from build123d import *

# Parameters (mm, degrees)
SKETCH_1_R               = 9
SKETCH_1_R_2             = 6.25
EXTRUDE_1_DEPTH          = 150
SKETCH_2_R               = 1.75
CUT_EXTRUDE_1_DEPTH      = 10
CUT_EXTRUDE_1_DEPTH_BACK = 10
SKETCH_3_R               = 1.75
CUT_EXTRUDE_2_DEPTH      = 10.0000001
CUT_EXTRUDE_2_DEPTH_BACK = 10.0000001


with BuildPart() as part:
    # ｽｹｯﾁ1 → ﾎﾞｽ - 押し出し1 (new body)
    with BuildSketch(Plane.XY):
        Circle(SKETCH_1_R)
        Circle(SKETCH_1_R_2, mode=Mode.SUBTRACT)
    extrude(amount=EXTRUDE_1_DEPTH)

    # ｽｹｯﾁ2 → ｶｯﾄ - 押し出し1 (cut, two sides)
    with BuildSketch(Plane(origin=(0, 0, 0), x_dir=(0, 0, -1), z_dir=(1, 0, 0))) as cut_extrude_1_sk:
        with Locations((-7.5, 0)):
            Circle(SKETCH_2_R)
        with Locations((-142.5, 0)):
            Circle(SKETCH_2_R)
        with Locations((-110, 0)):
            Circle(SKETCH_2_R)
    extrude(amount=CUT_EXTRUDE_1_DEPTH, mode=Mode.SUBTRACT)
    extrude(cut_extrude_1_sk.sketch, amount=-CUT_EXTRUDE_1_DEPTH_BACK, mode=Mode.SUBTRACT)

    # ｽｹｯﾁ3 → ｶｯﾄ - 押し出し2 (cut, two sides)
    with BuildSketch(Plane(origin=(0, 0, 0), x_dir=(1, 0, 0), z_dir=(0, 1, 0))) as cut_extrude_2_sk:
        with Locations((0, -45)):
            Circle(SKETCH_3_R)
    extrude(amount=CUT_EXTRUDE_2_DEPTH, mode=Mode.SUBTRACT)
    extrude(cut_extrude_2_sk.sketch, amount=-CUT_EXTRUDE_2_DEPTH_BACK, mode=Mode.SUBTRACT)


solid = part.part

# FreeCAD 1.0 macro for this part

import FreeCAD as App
import Part
import Sketcher
from FreeCAD import Vector

doc = App.newDocument("Part")
body = doc.addObject("PartDesign::Body", "Body")

# Sketch on XY plane
sketch1 = body.newObject("Sketcher::SketchObject", "Sketch")
sketch1.AttachmentSupport = (doc.getObject("XY_Plane"), [""])
sketch1.MapMode = "FlatFace"
sketch1.addGeometry(Part.Circle(Vector(0, 0, 0), Vector(0, 0, 1), 9), False)
sketch1.addGeometry(Part.Circle(Vector(0, 0, 0), Vector(0, 0, 1), 6), False)
sketch1.addConstraint(Sketcher.Constraint("Coincident", 0, 3, -1, 1))
sketch1.addConstraint(Sketcher.Constraint("Coincident", 1, 3, -1, 1))
sketch1.addConstraint(Sketcher.Constraint("Diameter", 0, 18.0))
sketch1.addConstraint(Sketcher.Constraint("Diameter", 1, 12.5))
pad1 = body.newObject("PartDesign::Pad", "Pad")
pad1.Profile = sketch1
pad1.Length = 150

# Sketch on YZ plane
sketch2 = body.newObject("Sketcher::SketchObject", "Sketch001")
sketch2.AttachmentSupport = (doc.getObject("YZ_Plane"), [""])
sketch2.MapMode = "FlatFace"
sketch2.addGeometry(Part.Circle(Vector(0, 7.5, 0), Vector(0, 0, 1), 1.8), False)
sketch2.addGeometry(Part.Circle(Vector(0, 142.5, 0), Vector(0, 0, 1), 1.8), False)
sketch2.addGeometry(Part.Circle(Vector(0, 110, 0), Vector(0, 0, 1), 1.8), False)
sketch2.addConstraint(Sketcher.Constraint("Equal", 0, 1))
sketch2.addConstraint(Sketcher.Constraint("Equal", 1, 2))
sketch2.addConstraint(Sketcher.Constraint("PointOnObject", 0, 3, -2))
sketch2.addConstraint(Sketcher.Constraint("PointOnObject", 1, 3, -2))
sketch2.addConstraint(Sketcher.Constraint("PointOnObject", 2, 3, -2))
sketch2.addConstraint(Sketcher.Constraint("Diameter", 0, 3.5))
sketch2.addConstraint(Sketcher.Constraint("DistanceY", -1, 1, 2, 3, 110.0))
sketch2.addConstraint(Sketcher.Constraint("DistanceY", 0, 3, 1, 3, 135.0))
sketch2.addConstraint(Sketcher.Constraint("DistanceY", -1, 1, 0, 3, 7.5))
pocket1 = body.newObject("PartDesign::Pocket", "Pocket")
pocket1.Profile = sketch2
pocket1.Type = "ThroughAll"
pocket1.Midplane = True

# Sketch on XZ plane
sketch3 = body.newObject("Sketcher::SketchObject", "Sketch002")
sketch3.AttachmentSupport = (doc.getObject("XZ_Plane"), [""])
sketch3.MapMode = "FlatFace"
sketch3.addGeometry(Part.Circle(Vector(0, 45, 0), Vector(0, 0, 1), 1.8), False)
sketch3.addConstraint(Sketcher.Constraint("PointOnObject", 0, 3, -2))
sketch3.addConstraint(Sketcher.Constraint("Diameter", 0, 3.5))
sketch3.addConstraint(Sketcher.Constraint("DistanceY", -1, 1, 0, 3, 45.0))
pocket2 = body.newObject("PartDesign::Pocket", "Pocket001")
pocket2.Profile = sketch3
pocket2.Type = "ThroughAll"
pocket2.Midplane = True

doc.recompute()
